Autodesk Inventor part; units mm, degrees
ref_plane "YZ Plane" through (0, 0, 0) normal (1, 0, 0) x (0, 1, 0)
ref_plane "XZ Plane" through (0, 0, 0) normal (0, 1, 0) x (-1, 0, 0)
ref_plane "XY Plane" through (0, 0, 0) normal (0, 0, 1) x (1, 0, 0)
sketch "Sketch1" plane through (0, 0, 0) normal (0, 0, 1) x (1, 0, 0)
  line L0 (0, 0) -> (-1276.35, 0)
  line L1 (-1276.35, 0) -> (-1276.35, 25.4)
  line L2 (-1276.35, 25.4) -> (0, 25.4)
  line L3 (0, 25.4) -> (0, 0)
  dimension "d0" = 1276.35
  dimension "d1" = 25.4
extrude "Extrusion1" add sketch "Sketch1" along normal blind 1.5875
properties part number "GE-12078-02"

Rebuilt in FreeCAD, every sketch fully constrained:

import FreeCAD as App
import Part
import Sketcher
from FreeCAD import Vector
Q = App.Units.Quantity

doc = App.newDocument("Part")
params = doc.addObject("Spreadsheet::Sheet", "Params")
for row, (alias, value) in enumerate([
    ("sketch1_height", "1 in"),
    ("sketch1_width", "50.25 in"),
    ("pad1_length", "0.0625 in"),
], start=1):
    params.set(f"A{row}", alias)
    params.set(f"B{row}", "=" + value)
    params.setAlias(f"B{row}", alias)

body = doc.addObject("PartDesign::Body", "Body")

# Sketch on XY plane
sketch1 = body.newObject("Sketcher::SketchObject", "Sketch")
sketch1.AttachmentSupport = (doc.getObject("XY_Plane"), [""])
sketch1.MapMode = "FlatFace"
sketch1.addGeometry([
    Part.LineSegment(Vector(-1276, 0, 0), Vector(0, 0, 0)),
    Part.LineSegment(Vector(0, 0, 0), Vector(0, 25, 0)),
    Part.LineSegment(Vector(0, 25, 0), Vector(-1276, 25, 0)),
    Part.LineSegment(Vector(-1276, 25, 0), Vector(-1276, 0, 0)),
], False)
sketch1.addConstraint([
    Sketcher.Constraint("Coincident", 0, 2, 1, 1),
    Sketcher.Constraint("Coincident", 1, 2, 2, 1),
    Sketcher.Constraint("Coincident", 2, 2, 3, 1),
    Sketcher.Constraint("Coincident", 3, 2, 0, 1),
    Sketcher.Constraint("Horizontal", 0),
    Sketcher.Constraint("Vertical", 1),
    Sketcher.Constraint("Horizontal", 2),
    Sketcher.Constraint("Vertical", 3),
    Sketcher.Constraint("Coincident", 0, 2, -1, 1),
    Sketcher.Constraint("DistanceY", 1, 1, 1, 2, Q("1 in")),
    Sketcher.Constraint("DistanceX", 0, 1, 0, 2, Q("50.25 in")),
])
sketch1.setExpression("Constraints[9]", "Params.sketch1_height")
sketch1.setExpression("Constraints[10]", "Params.sketch1_width")
pad1 = body.newObject("PartDesign::Pad", "Pad")
pad1.Profile = sketch1
pad1.setExpression("Length", "Params.pad1_length")

doc.recompute()
